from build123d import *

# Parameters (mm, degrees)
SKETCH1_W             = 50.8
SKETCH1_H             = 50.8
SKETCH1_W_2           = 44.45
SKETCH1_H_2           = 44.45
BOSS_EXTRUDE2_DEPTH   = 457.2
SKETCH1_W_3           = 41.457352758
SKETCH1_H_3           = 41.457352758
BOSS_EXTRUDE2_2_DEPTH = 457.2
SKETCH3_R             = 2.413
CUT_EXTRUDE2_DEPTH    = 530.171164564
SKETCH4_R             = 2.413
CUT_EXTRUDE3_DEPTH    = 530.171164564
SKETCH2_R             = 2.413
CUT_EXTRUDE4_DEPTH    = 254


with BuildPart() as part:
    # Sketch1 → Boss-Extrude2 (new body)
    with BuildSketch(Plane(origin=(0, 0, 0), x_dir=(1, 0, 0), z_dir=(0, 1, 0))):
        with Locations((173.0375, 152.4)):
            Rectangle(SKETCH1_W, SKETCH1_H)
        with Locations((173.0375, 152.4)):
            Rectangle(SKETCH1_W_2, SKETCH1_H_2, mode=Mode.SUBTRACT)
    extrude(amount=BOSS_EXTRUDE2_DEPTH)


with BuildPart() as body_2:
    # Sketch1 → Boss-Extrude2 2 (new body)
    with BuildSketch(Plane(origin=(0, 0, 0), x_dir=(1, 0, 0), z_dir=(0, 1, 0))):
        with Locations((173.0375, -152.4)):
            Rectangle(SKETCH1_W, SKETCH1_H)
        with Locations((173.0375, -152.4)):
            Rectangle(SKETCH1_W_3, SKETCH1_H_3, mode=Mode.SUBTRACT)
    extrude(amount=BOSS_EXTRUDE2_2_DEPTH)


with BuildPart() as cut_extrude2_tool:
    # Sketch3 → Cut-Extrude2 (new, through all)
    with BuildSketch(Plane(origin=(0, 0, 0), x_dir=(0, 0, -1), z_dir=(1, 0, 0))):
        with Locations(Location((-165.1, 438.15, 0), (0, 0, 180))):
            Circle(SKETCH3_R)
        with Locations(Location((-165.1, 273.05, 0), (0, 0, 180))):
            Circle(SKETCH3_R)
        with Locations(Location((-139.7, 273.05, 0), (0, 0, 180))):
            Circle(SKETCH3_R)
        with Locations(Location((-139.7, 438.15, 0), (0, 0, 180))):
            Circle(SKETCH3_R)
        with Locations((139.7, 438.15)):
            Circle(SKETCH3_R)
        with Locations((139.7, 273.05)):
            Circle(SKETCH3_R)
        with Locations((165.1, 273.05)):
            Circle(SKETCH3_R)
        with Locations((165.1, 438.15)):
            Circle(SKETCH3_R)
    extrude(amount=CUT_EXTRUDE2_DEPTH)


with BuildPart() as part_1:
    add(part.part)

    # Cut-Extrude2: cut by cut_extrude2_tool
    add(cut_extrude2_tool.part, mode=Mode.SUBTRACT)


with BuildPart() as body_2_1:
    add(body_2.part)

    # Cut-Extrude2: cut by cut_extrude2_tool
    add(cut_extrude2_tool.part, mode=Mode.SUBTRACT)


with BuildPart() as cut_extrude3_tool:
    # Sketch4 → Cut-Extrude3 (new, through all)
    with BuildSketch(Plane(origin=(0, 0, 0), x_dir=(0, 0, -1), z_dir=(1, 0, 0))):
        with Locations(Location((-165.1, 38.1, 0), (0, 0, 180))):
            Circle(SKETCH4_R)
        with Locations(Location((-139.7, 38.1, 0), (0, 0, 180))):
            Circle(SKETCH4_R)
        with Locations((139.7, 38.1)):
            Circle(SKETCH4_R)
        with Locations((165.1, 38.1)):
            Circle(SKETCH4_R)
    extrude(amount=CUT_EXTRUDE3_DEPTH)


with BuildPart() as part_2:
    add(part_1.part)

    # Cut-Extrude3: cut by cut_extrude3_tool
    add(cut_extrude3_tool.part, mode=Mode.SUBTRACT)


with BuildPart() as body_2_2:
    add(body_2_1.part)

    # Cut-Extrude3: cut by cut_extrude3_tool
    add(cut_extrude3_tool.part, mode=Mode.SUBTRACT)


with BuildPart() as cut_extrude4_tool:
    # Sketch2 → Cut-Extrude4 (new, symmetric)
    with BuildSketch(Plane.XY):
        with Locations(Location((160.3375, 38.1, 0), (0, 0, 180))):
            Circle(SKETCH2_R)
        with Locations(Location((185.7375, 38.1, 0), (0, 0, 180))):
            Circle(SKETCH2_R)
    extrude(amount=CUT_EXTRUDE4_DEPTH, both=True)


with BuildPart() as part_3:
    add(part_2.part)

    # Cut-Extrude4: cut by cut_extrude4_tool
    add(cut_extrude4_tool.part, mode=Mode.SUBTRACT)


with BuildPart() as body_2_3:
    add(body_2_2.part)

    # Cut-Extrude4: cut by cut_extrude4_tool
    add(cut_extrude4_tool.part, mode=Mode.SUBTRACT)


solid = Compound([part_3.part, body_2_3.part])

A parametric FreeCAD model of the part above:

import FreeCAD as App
import Part
import Sketcher

V = App.Vector
Q = App.Units.Quantity

doc = App.newDocument("Part")
params = doc.addObject("Spreadsheet::Sheet", "Params")
for row, (alias, value) in enumerate([
    ("sketch1_width", "2 in"),
    ("sketch1_width2", "1.75 in"),
    ("pad1_length", "18 in"),
    ("sketch2_width", "2 in"),
    ("pad2_length", "18 in"),
    ("sketch3_diameter", "0.19 in"),
    ("pad3_length", "530.171165 mm"),
    ("sketch4_diameter", "0.19 in"),
    ("pad4_length", "530.171165 mm"),
    ("sketch5_diameter", "0.19 in"),
    ("pad5_length", "20 in"),
], start=1):
    params.set(f"A{row}", alias)
    params.set(f"B{row}", "=" + value)
    params.setAlias(f"B{row}", alias)

body = doc.addObject("PartDesign::Body", "Body")

sketch1 = body.newObject("Sketcher::SketchObject", "Sketch")
sketch1.AttachmentSupport = (doc.getObject("XZ_Plane"), [""])
sketch1.MapMode = "FlatFace"
sketch1.addGeometry([
    Part.LineSegment(V(148, -178, 0), V(148, -127, 0)),
    Part.LineSegment(V(148, -127, 0), V(198, -127, 0)),
    Part.LineSegment(V(198, -127, 0), V(198, -178, 0)),
    Part.LineSegment(V(198, -178, 0), V(148, -178, 0)),
    Part.LineSegment(V(195, -130, 0), V(151, -130, 0)),
    Part.LineSegment(V(151, -130, 0), V(151, -175, 0)),
    Part.LineSegment(V(151, -175, 0), V(195, -175, 0)),
    Part.LineSegment(V(195, -175, 0), V(195, -130, 0)),
], False)
sketch1.addConstraint([
    Sketcher.Constraint("Coincident", 0, 2, 1, 1),
    Sketcher.Constraint("Coincident", 1, 2, 2, 1),
    Sketcher.Constraint("Coincident", 2, 2, 3, 1),
    Sketcher.Constraint("Coincident", 3, 2, 0, 1),
    Sketcher.Constraint("Coincident", 4, 2, 5, 1),
    Sketcher.Constraint("Coincident", 5, 2, 6, 1),
    Sketcher.Constraint("Coincident", 6, 2, 7, 1),
    Sketcher.Constraint("Coincident", 7, 2, 4, 1),
    Sketcher.Constraint("Vertical", 0),
    Sketcher.Constraint("Horizontal", 1),
    Sketcher.Constraint("Vertical", 2),
    Sketcher.Constraint("Horizontal", 3),
    Sketcher.Constraint("Horizontal", 4),
    Sketcher.Constraint("Vertical", 5),
    Sketcher.Constraint("Horizontal", 6),
    Sketcher.Constraint("Vertical", 7),
    Sketcher.Constraint("Equal", 3, 0),
    Sketcher.Constraint("Equal", 6, 5),
    Sketcher.Constraint("DistanceX", 1, 1, 1, 2, Q("2 in")),
    Sketcher.Constraint("DistanceY", 0, 2, -1, 1, Q("5 in")),
    Sketcher.Constraint("DistanceX", 4, 2, 4, 1, Q("1.75 in")),
    Sketcher.Constraint("DistanceX", -1, 1, 0, 2, Q("5.8125 in")),
    Sketcher.Constraint("DistanceX", -1, 1, 4, 2, Q("5.9375 in")),
    Sketcher.Constraint("DistanceY", 4, 2, -1, 1, Q("5.125 in")),
])
sketch1.setExpression("Constraints[18]", "Params.sketch1_width")
sketch1.setExpression("Constraints[20]", "Params.sketch1_width2")
pad1 = body.newObject("PartDesign::Pad", "Pad")
pad1.Profile = sketch1
pad1.setExpression("Length", "Params.pad1_length")
pad1.Reversed = True
body2 = doc.addObject("PartDesign::Body", "Body001")

sketch2 = body2.newObject("Sketcher::SketchObject", "Sketch001")
sketch2.AttachmentSupport = (doc.getObject("XZ_Plane001"), [""])
sketch2.MapMode = "FlatFace"
sketch2.addGeometry([
    Part.LineSegment(V(148, 127, 0), V(148, 178, 0)),
    Part.LineSegment(V(148, 178, 0), V(198, 178, 0)),
    Part.LineSegment(V(198, 178, 0), V(198, 127, 0)),
    Part.LineSegment(V(198, 127, 0), V(148, 127, 0)),
    Part.LineSegment(V(194, 173, 0), V(152, 173, 0)),
    Part.LineSegment(V(152, 173, 0), V(152, 132, 0)),
    Part.LineSegment(V(152, 132, 0), V(194, 132, 0)),
    Part.LineSegment(V(194, 132, 0), V(194, 173, 0)),
], False)
sketch2.addConstraint([
    Sketcher.Constraint("Coincident", 0, 2, 1, 1),
    Sketcher.Constraint("Coincident", 1, 2, 2, 1),
    Sketcher.Constraint("Coincident", 2, 2, 3, 1),
    Sketcher.Constraint("Coincident", 3, 2, 0, 1),
    Sketcher.Constraint("Coincident", 4, 2, 5, 1),
    Sketcher.Constraint("Coincident", 5, 2, 6, 1),
    Sketcher.Constraint("Coincident", 6, 2, 7, 1),
    Sketcher.Constraint("Coincident", 7, 2, 4, 1),
    Sketcher.Constraint("Vertical", 0),
    Sketcher.Constraint("Horizontal", 1),
    Sketcher.Constraint("Vertical", 2),
    Sketcher.Constraint("Horizontal", 3),
    Sketcher.Constraint("Horizontal", 4),
    Sketcher.Constraint("Vertical", 5),
    Sketcher.Constraint("Horizontal", 6),
    Sketcher.Constraint("Vertical", 7),
    Sketcher.Constraint("Equal", 3, 0),
    Sketcher.Constraint("Equal", 6, 5),
    Sketcher.Constraint("DistanceX", 1, 1, 1, 2, Q("2 in")),
    Sketcher.Constraint("DistanceY", -1, 1, 0, 2, Q("7 in")),
    Sketcher.Constraint("DistanceX", -1, 1, 0, 2, Q("5.8125 in")),
    Sketcher.Constraint("DistanceX", 4, 2, 4, 1, 41.457353),
    Sketcher.Constraint("DistanceX", -1, 1, 4, 2, 152.308824),
    Sketcher.Constraint("DistanceY", -1, 1, 4, 2, 173.128676),
])
sketch2.setExpression("Constraints[18]", "Params.sketch2_width")
pad2 = body2.newObject("PartDesign::Pad", "Pad001")
pad2.Profile = sketch2
pad2.setExpression("Length", "Params.pad2_length")
pad2.Reversed = True
body3 = doc.addObject("PartDesign::Body", "Body002")
body3.AllowCompound = True

sketch3 = body3.newObject("Sketcher::SketchObject", "Sketch002")
sketch3.AttachmentSupport = (doc.getObject("YZ_Plane002"), [""])
sketch3.MapMode = "FlatFace"
sketch3.addGeometry([
    Part.Circle(V(438.1, 165.1, 0), V(0, 0, 1), 2.4),
    Part.Circle(V(273.1, 165.1, 0), V(0, 0, 1), 2.4),
    Part.Circle(V(273.1, 139.7, 0), V(0, 0, 1), 2.4),
    Part.Circle(V(438.1, 139.7, 0), V(0, 0, 1), 2.4),
    Part.Circle(V(438.1, -139.7, 0), V(0, 0, 1), 2.4),
    Part.Circle(V(273.1, -139.7, 0), V(0, 0, 1), 2.4),
    Part.Circle(V(273.1, -165.1, 0), V(0, 0, 1), 2.4),
    Part.Circle(V(438.1, -165.1, 0), V(0, 0, 1), 2.4),
], False)
sketch3.addConstraint([
    Sketcher.Constraint("Equal", 0, 1),
    Sketcher.Constraint("Equal", 1, 2),
    Sketcher.Constraint("Equal", 2, 3),
    Sketcher.Constraint("Equal", 3, 4),
    Sketcher.Constraint("Equal", 4, 5),
    Sketcher.Constraint("Equal", 5, 6),
    Sketcher.Constraint("Equal", 6, 7),
    Sketcher.Constraint("Symmetric", 3, 3, 4, 3, -1),
    Sketcher.Constraint("Symmetric", 2, 3, 5, 3, -1),
    Sketcher.Constraint("Symmetric", 1, 3, 6, 3, -1),
    Sketcher.Constraint("Symmetric", 0, 3, 7, 3, -1),
    Sketcher.Constraint("Horizontal", 0, 3, 1, 3),
    Sketcher.Constraint("Horizontal", 2, 3, 3, 3),
    Sketcher.Constraint("Vertical", 1, 3, 2, 3),
    Sketcher.Constraint("Vertical", 0, 3, 3, 3),
    Sketcher.Constraint("Diameter", 0, Q("0.19 in")),
    Sketcher.Constraint("DistanceY", 2, 3, 1, 3, Q("1 in")),
    Sketcher.Constraint("DistanceY", 4, 3, 3, 3, Q("11 in")),
    Sketcher.Constraint("DistanceX", 1, 3, 0, 3, Q("6.5 in")),
    Sketcher.Constraint("DistanceX", -1, 1, 0, 3, Q("17.25 in")),
])
sketch3.setExpression("Constraints[15]", "Params.sketch3_diameter")
pad3 = body3.newObject("PartDesign::Pad", "Pad002")
pad3.Profile = sketch3
pad3.setExpression("Length", "Params.pad3_length")
doc.recompute()

body4 = doc.addObject("PartDesign::Body", "Body003")
body4.BaseFeature = body3
boolean = body.newObject("PartDesign::Boolean", "Boolean")
boolean.Type = "Cut"
boolean.addObjects([body4])
doc.recompute()

boolean2 = body2.newObject("PartDesign::Boolean", "Boolean001")
boolean2.Type = "Cut"
boolean2.addObjects([body3])
body5 = doc.addObject("PartDesign::Body", "Body004")
body5.AllowCompound = True

sketch4 = body5.newObject("Sketcher::SketchObject", "Sketch003")
sketch4.AttachmentSupport = (doc.getObject("YZ_Plane004"), [""])
sketch4.MapMode = "FlatFace"
sketch4.addGeometry([
    Part.Circle(V(38.1, 165.1, 0), V(0, 0, 1), 2.4),
    Part.Circle(V(38.1, 139.7, 0), V(0, 0, 1), 2.4),
    Part.Circle(V(38.1, -139.7, 0), V(0, 0, 1), 2.4),
    Part.Circle(V(38.1, -165.1, 0), V(0, 0, 1), 2.4),
], False)
sketch4.addConstraint([
    Sketcher.Constraint("Equal", 0, 1),
    Sketcher.Constraint("Equal", 1, 2),
    Sketcher.Constraint("Equal", 2, 3),
    Sketcher.Constraint("Symmetric", 1, 3, 2, 3, -1),
    Sketcher.Constraint("Symmetric", 0, 3, 3, 3, -1),
    Sketcher.Constraint("Vertical", 0, 3, 1, 3),
    Sketcher.Constraint("Diameter", 0, Q("0.19 in")),
    Sketcher.Constraint("DistanceY", 1, 3, 0, 3, Q("1 in")),
    Sketcher.Constraint("DistanceY", 2, 3, 1, 3, Q("11 in")),
    Sketcher.Constraint("DistanceX", -1, 1, 0, 3, Q("1.5 in")),
])
sketch4.setExpression("Constraints[6]", "Params.sketch4_diameter")
pad4 = body5.newObject("PartDesign::Pad", "Pad003")
pad4.Profile = sketch4
pad4.setExpression("Length", "Params.pad4_length")
doc.recompute()

body6 = doc.addObject("PartDesign::Body", "Body005")
body6.BaseFeature = body5
boolean3 = body.newObject("PartDesign::Boolean", "Boolean002")
boolean3.Type = "Cut"
boolean3.addObjects([body6])
doc.recompute()

boolean4 = body2.newObject("PartDesign::Boolean", "Boolean003")
boolean4.Type = "Cut"
boolean4.addObjects([body5])
body7 = doc.addObject("PartDesign::Body", "Body006")
body7.AllowCompound = True

sketch5 = body7.newObject("Sketcher::SketchObject", "Sketch004")
sketch5.AttachmentSupport = (doc.getObject("XY_Plane006"), [""])
sketch5.MapMode = "FlatFace"
sketch5.addGeometry([
    Part.Circle(V(160.3, 38.1, 0), V(0, 0, 1), 2.4),
    Part.Circle(V(185.7, 38.1, 0), V(0, 0, 1), 2.4),
], False)
sketch5.addConstraint([
    Sketcher.Constraint("Equal", 0, 1),
    Sketcher.Constraint("Horizontal", 0, 3, 1, 3),
    Sketcher.Constraint("Diameter", 0, Q("0.19 in")),
    Sketcher.Constraint("DistanceX", 0, 3, 1, 3, Q("1 in")),
    Sketcher.Constraint("DistanceY", -1, 1, 0, 3, Q("1.5 in")),
    Sketcher.Constraint("DistanceX", -1, 1, 0, 3, Q("6.3125 in")),
])
sketch5.setExpression("Constraints[2]", "Params.sketch5_diameter")
pad5 = body7.newObject("PartDesign::Pad", "Pad004")
pad5.Profile = sketch5
pad5.setExpression("Length", "Params.pad5_length")
pad5.Midplane = True
doc.recompute()

body8 = doc.addObject("PartDesign::Body", "Body007")
body8.BaseFeature = body7
boolean5 = body.newObject("PartDesign::Boolean", "Boolean004")
boolean5.Type = "Cut"
boolean5.addObjects([body8])
doc.recompute()

boolean6 = body2.newObject("PartDesign::Boolean", "Boolean005")
boolean6.Type = "Cut"
boolean6.addObjects([body7])

doc.recompute()
